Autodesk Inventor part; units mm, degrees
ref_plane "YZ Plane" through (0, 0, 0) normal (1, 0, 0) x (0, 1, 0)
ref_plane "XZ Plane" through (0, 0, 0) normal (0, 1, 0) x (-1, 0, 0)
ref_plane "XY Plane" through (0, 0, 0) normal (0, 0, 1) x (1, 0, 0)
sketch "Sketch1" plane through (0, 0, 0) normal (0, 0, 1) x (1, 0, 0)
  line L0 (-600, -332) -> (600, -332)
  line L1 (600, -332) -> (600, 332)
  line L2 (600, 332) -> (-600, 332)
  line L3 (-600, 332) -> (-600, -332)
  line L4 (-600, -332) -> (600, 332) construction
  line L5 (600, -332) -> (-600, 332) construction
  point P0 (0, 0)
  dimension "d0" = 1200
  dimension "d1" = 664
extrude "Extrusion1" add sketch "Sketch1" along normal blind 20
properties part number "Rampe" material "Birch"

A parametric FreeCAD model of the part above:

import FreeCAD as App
import Part
import Sketcher

V = App.Vector
Q = App.Units.Quantity


def add_polygon(sketch, points):
    """Adds a closed chain of lines whose ends are joined by coincident constraints."""
    first, n = sketch.GeometryCount, len(points)
    for a, b in zip(points, points[1:] + points[:1]):
        sketch.addGeometry(Part.LineSegment(App.Vector(*a, 0), App.Vector(*b, 0)), False)
    for i in range(n):
        sketch.addConstraint(Sketcher.Constraint("Coincident", first + i, 2, first + (i + 1) % n, 1))

doc = App.newDocument("Part")
body = doc.addObject("PartDesign::Body", "Body")

# Sketch on XY plane
sketch1 = body.newObject("Sketcher::SketchObject", "Sketch")
sketch1.AttachmentSupport = (doc.getObject("XY_Plane"), [""])
sketch1.MapMode = "FlatFace"
add_polygon(sketch1, [(-600, 332), (-600, -332), (600, -332), (600, 332)])  # lines 0-3
sketch1.addConstraint(Sketcher.Constraint("Vertical", 0))
sketch1.addConstraint(Sketcher.Constraint("Horizontal", 1))
sketch1.addConstraint(Sketcher.Constraint("Vertical", 2))
sketch1.addConstraint(Sketcher.Constraint("Horizontal", 3))
sketch1.addConstraint(Sketcher.Constraint("Symmetric", 0, 2, 2, 2, -1, 1))
sketch1.addConstraint(Sketcher.Constraint("DistanceX", 1, 1, 1, 2, Q("1200 mm")))
sketch1.addConstraint(Sketcher.Constraint("DistanceY", 0, 2, 0, 1, Q("664 mm")))
pad1 = body.newObject("PartDesign::Pad", "Pad")
pad1.Profile = sketch1
pad1.Length = 20

doc.recompute()
